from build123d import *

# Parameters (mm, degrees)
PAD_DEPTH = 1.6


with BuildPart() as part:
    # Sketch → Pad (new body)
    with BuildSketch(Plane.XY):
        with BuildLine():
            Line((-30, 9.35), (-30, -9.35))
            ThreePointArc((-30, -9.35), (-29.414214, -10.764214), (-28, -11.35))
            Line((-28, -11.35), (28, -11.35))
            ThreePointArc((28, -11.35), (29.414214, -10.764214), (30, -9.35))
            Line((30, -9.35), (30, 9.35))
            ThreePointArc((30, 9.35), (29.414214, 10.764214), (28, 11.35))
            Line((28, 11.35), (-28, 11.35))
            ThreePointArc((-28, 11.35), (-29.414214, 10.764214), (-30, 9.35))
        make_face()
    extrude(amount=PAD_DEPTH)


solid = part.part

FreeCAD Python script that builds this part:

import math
import FreeCAD as App
import Part
import Sketcher

V = App.Vector

doc = App.newDocument("Part")
body = doc.addObject("PartDesign::Body", "Body")

# Sketch on XY plane
sketch1 = body.newObject("Sketcher::SketchObject", "Sketch")
sketch1.AttachmentSupport = (doc.getObject("XY_Plane"), [""])
sketch1.MapMode = "FlatFace"
sketch1.addGeometry(Part.LineSegment(V(-30, 9.3, 0), V(-30, -9.3, 0)), False)
sketch1.addGeometry(Part.ArcOfCircle(Part.Circle(V(-28, -9.4, 0), V(0, 0, 1), 2), math.radians(180), math.radians(270)), False)
sketch1.addGeometry(Part.LineSegment(V(-28, -11.3, 0), V(28, -11.3, 0)), False)
sketch1.addGeometry(Part.ArcOfCircle(Part.Circle(V(28, -9.4, 0), V(0, 0, 1), 2), math.radians(-90), math.radians(0)), False)
sketch1.addGeometry(Part.LineSegment(V(30, -9.3, 0), V(30, 9.3, 0)), False)
sketch1.addGeometry(Part.ArcOfCircle(Part.Circle(V(28, 9.4, 0), V(0, 0, 1), 2), math.radians(0), math.radians(90)), False)
sketch1.addGeometry(Part.LineSegment(V(28, 11.3, 0), V(-28, 11.3, 0)), False)
sketch1.addGeometry(Part.ArcOfCircle(Part.Circle(V(-28, 9.4, 0), V(0, 0, 1), 2), math.radians(90), math.radians(180)), False)
sketch1.addConstraint(Sketcher.Constraint("Tangent", 0, 2, 1, 1))
sketch1.addConstraint(Sketcher.Constraint("Tangent", 1, 2, 2, 1))
sketch1.addConstraint(Sketcher.Constraint("Tangent", 2, 2, 3, 1))
sketch1.addConstraint(Sketcher.Constraint("Tangent", 3, 2, 4, 1))
sketch1.addConstraint(Sketcher.Constraint("Tangent", 4, 2, 5, 1))
sketch1.addConstraint(Sketcher.Constraint("Tangent", 5, 2, 6, 1))
sketch1.addConstraint(Sketcher.Constraint("Tangent", 6, 2, 7, 1))
sketch1.addConstraint(Sketcher.Constraint("Tangent", 7, 2, 0, 1))
sketch1.addConstraint(Sketcher.Constraint("Vertical", 0))
sketch1.addConstraint(Sketcher.Constraint("Horizontal", 2))
sketch1.addConstraint(Sketcher.Constraint("Vertical", 4))
sketch1.addConstraint(Sketcher.Constraint("Horizontal", 6))
sketch1.addConstraint(Sketcher.Constraint("Equal", 1, 3))
sketch1.addConstraint(Sketcher.Constraint("Equal", 3, 5))
sketch1.addConstraint(Sketcher.Constraint("Equal", 5, 7))
sketch1.addConstraint(Sketcher.Constraint("Symmetric", 1, 3, 5, 3, -1, 1))
sketch1.addConstraint(Sketcher.Constraint("Radius", 1, 1.999999))
sketch1.addConstraint(Sketcher.Constraint("DistanceX", 2, 1, 2, 2, 56.0))
sketch1.addConstraint(Sketcher.Constraint("DistanceY", 0, 2, 0, 1, 18.7))
pad1 = body.newObject("PartDesign::Pad", "Pad")
pad1.Profile = sketch1
pad1.Length = 1.6

doc.recompute()
